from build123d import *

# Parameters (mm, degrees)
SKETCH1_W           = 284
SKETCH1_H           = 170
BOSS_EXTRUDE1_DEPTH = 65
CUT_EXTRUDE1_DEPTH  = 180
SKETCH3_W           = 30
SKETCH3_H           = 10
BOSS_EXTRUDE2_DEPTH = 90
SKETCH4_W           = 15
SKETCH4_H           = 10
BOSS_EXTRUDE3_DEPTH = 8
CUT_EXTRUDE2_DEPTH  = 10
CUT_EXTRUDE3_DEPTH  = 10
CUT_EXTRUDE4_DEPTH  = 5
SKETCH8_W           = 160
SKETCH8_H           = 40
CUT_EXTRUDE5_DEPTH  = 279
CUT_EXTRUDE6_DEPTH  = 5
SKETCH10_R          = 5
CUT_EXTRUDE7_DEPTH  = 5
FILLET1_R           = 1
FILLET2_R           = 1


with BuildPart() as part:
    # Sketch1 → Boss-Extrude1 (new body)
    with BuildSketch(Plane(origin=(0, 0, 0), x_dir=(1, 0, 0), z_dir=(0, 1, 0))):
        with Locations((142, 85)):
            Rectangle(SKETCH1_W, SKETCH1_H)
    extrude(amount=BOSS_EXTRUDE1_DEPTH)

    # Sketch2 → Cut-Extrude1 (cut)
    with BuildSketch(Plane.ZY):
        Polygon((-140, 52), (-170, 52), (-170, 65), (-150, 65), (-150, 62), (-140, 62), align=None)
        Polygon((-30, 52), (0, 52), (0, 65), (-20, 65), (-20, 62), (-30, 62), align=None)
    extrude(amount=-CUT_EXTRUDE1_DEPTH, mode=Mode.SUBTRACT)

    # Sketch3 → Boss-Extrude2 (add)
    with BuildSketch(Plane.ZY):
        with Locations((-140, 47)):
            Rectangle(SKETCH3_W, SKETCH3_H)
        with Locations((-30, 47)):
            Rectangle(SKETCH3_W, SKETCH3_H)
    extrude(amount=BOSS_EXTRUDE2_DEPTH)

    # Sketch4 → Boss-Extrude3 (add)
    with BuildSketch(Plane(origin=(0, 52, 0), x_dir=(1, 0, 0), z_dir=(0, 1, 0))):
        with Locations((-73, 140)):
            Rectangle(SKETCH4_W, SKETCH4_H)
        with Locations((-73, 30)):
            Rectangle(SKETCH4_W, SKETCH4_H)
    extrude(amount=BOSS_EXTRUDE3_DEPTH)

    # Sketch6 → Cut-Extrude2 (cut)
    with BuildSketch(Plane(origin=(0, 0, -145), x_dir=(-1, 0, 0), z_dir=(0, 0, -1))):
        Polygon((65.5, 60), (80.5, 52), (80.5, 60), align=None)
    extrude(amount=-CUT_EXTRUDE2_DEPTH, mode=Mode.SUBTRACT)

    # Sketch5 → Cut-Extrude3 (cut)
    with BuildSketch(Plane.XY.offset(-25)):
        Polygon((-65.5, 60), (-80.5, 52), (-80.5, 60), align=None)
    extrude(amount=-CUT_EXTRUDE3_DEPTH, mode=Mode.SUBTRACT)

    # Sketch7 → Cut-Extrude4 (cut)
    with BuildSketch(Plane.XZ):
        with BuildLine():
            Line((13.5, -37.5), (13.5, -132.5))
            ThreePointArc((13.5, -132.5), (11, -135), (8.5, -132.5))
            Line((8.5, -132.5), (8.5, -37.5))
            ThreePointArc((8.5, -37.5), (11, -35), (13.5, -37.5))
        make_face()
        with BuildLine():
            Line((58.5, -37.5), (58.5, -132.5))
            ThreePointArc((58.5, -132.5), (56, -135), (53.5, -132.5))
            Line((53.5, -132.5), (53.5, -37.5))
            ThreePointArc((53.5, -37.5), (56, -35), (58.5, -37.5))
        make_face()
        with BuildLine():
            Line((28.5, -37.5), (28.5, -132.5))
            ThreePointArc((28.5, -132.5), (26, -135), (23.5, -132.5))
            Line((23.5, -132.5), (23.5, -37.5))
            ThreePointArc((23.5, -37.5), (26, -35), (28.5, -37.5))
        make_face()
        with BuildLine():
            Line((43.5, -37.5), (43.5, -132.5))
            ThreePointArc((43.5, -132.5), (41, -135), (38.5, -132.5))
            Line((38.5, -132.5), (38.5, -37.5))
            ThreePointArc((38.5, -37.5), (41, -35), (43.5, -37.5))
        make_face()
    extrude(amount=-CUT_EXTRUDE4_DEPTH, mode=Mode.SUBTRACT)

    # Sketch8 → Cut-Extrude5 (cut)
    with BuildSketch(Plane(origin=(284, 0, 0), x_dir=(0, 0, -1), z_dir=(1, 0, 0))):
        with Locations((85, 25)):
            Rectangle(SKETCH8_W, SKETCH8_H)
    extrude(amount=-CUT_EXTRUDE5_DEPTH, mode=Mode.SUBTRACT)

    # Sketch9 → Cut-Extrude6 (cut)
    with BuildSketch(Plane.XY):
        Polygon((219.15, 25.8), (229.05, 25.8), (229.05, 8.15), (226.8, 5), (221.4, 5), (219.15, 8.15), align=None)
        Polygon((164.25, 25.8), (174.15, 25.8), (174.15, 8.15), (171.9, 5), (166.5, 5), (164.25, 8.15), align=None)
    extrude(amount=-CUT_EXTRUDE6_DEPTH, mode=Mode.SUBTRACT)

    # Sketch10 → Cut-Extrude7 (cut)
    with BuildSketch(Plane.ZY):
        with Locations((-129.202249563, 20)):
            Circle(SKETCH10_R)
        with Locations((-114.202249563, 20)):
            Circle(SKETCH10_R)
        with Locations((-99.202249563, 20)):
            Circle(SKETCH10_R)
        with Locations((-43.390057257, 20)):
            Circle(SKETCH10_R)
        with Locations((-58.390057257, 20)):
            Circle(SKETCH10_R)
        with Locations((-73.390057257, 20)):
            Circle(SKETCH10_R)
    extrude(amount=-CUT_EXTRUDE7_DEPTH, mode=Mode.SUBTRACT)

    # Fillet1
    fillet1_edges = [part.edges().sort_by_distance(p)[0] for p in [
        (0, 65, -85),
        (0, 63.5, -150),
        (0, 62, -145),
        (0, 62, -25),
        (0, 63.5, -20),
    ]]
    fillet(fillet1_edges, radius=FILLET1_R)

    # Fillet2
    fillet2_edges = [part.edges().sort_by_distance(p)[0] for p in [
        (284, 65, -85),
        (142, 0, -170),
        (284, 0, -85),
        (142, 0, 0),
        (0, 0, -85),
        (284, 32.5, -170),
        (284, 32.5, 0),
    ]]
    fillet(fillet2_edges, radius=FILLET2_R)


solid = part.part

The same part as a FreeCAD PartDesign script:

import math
import FreeCAD as App
import Part
import Sketcher
Q = App.Units.Quantity


def edges_at(feature, points):
    """Names of the edges that pass closest to the given points."""
    edges = feature.Shape.Edges
    near = lambda p: min(range(len(edges)), key=lambda i: edges[i].distToShape(Part.Vertex(*p))[0])
    return sorted({f"Edge{near(p) + 1}" for p in points})

doc = App.newDocument("Part")
body = doc.addObject("PartDesign::Body", "Body")

sketch1 = body.newObject("Sketcher::SketchObject", "Sketch")
sketch1.AttachmentSupport = (doc.getObject("XZ_Plane"), [""])
sketch1.MapMode = "FlatFace"
sketch1.addGeometry([
    Part.LineSegment(App.Vector(0, -170, 0), App.Vector(0, 0, 0)),
    Part.LineSegment(App.Vector(0, 0, 0), App.Vector(284, 0, 0)),
    Part.LineSegment(App.Vector(284, 0, 0), App.Vector(284, -170, 0)),
    Part.LineSegment(App.Vector(284, -170, 0), App.Vector(0, -170, 0)),
], False)
sketch1.addConstraint([
    Sketcher.Constraint("Coincident", 0, 2, 1, 1),
    Sketcher.Constraint("Coincident", 1, 2, 2, 1),
    Sketcher.Constraint("Coincident", 2, 2, 3, 1),
    Sketcher.Constraint("Coincident", 3, 2, 0, 1),
    Sketcher.Constraint("Vertical", 0),
    Sketcher.Constraint("Horizontal", 1),
    Sketcher.Constraint("Vertical", 2),
    Sketcher.Constraint("Horizontal", 3),
    Sketcher.Constraint("Coincident", 0, 2, -1, 1),
    Sketcher.Constraint("DistanceX", 1, 1, 1, 2, Q("284 mm")),
    Sketcher.Constraint("DistanceY", 0, 1, 0, 2, Q("170 mm")),
])
pad1 = body.newObject("PartDesign::Pad", "Pad")
pad1.Profile = sketch1
pad1.Length = 65
pad1.Reversed = True

sketch2 = body.newObject("Sketcher::SketchObject", "Sketch001")
sketch2.AttachmentSupport = (doc.getObject("YZ_Plane"), [""])
sketch2.MapMode = "FlatFace"
sketch2.addGeometry([
    Part.LineSegment(App.Vector(52, -170, 0), App.Vector(52, -140, 0)),
    Part.LineSegment(App.Vector(52, -140, 0), App.Vector(62, -140, 0)),
    Part.LineSegment(App.Vector(62, -140, 0), App.Vector(62, -150, 0)),
    Part.LineSegment(App.Vector(62, -150, 0), App.Vector(65, -150, 0)),
    Part.LineSegment(App.Vector(65, -150, 0), App.Vector(65, -170, 0)),
    Part.LineSegment(App.Vector(65, -170, 0), App.Vector(52, -170, 0)),
    Part.LineSegment(App.Vector(52, -30, 0), App.Vector(52, 0, 0)),
    Part.LineSegment(App.Vector(52, 0, 0), App.Vector(65, 0, 0)),
    Part.LineSegment(App.Vector(65, 0, 0), App.Vector(65, -20, 0)),
    Part.LineSegment(App.Vector(65, -20, 0), App.Vector(62, -20, 0)),
    Part.LineSegment(App.Vector(62, -20, 0), App.Vector(62, -30, 0)),
    Part.LineSegment(App.Vector(62, -30, 0), App.Vector(52, -30, 0)),
], False)
sketch2.addConstraint([
    Sketcher.Constraint("Coincident", 0, 2, 1, 1),
    Sketcher.Constraint("Coincident", 1, 2, 2, 1),
    Sketcher.Constraint("Coincident", 2, 2, 3, 1),
    Sketcher.Constraint("Coincident", 3, 2, 4, 1),
    Sketcher.Constraint("Coincident", 4, 2, 5, 1),
    Sketcher.Constraint("Coincident", 5, 2, 0, 1),
    Sketcher.Constraint("Coincident", 6, 2, 7, 1),
    Sketcher.Constraint("Coincident", 7, 2, 8, 1),
    Sketcher.Constraint("Coincident", 8, 2, 9, 1),
    Sketcher.Constraint("Coincident", 9, 2, 10, 1),
    Sketcher.Constraint("Coincident", 10, 2, 11, 1),
    Sketcher.Constraint("Coincident", 11, 2, 6, 1),
    Sketcher.Constraint("Vertical", 0),
    Sketcher.Constraint("Horizontal", 1),
    Sketcher.Constraint("Vertical", 2),
    Sketcher.Constraint("Horizontal", 3),
    Sketcher.Constraint("Vertical", 4),
    Sketcher.Constraint("Horizontal", 5),
    Sketcher.Constraint("Vertical", 6),
    Sketcher.Constraint("Horizontal", 7),
    Sketcher.Constraint("Vertical", 8),
    Sketcher.Constraint("Horizontal", 9),
    Sketcher.Constraint("Vertical", 10),
    Sketcher.Constraint("Horizontal", 11),
    Sketcher.Constraint("PointOnObject", 6, 2, -1),
    Sketcher.Constraint("Vertical", 5, 2, 6, 2),
    Sketcher.Constraint("Vertical", 4, 2, 7, 2),
    Sketcher.Constraint("Vertical", 2, 2, 9, 2),
    Sketcher.Constraint("Equal", 11, 2),
    Sketcher.Constraint("Equal", 0, 6),
    Sketcher.Constraint("Equal", 4, 8),
    Sketcher.Constraint("DistanceX", 1, 1, 1, 2, Q("10 mm")),
    Sketcher.Constraint("DistanceX", 3, 1, 3, 2, Q("3 mm")),
    Sketcher.Constraint("DistanceY", 0, 1, 0, 2, Q("30 mm")),
    Sketcher.Constraint("DistanceX", -1, 1, 0, 2, Q("52 mm")),
    Sketcher.Constraint("DistanceY", 0, 2, -1, 1, Q("140 mm")),
])
pocket1 = body.newObject("PartDesign::Pocket", "Pocket")
pocket1.Profile = sketch2
pocket1.Length = 180
pocket1.Reversed = True

sketch3 = body.newObject("Sketcher::SketchObject", "Sketch002")
sketch3.AttachmentSupport = (doc.getObject("YZ_Plane"), [""])
sketch3.MapMode = "FlatFace"
sketch3.addGeometry([
    Part.LineSegment(App.Vector(52, -155, 0), App.Vector(42, -155, 0)),
    Part.LineSegment(App.Vector(42, -155, 0), App.Vector(42, -125, 0)),
    Part.LineSegment(App.Vector(42, -125, 0), App.Vector(52, -125, 0)),
    Part.LineSegment(App.Vector(52, -125, 0), App.Vector(52, -155, 0)),
    Part.LineSegment(App.Vector(52, -45, 0), App.Vector(42, -45, 0)),
    Part.LineSegment(App.Vector(42, -45, 0), App.Vector(42, -15, 0)),
    Part.LineSegment(App.Vector(42, -15, 0), App.Vector(52, -15, 0)),
    Part.LineSegment(App.Vector(52, -15, 0), App.Vector(52, -45, 0)),
], False)
sketch3.addConstraint([
    Sketcher.Constraint("Coincident", 0, 2, 1, 1),
    Sketcher.Constraint("Coincident", 1, 2, 2, 1),
    Sketcher.Constraint("Coincident", 2, 2, 3, 1),
    Sketcher.Constraint("Coincident", 3, 2, 0, 1),
    Sketcher.Constraint("Coincident", 4, 2, 5, 1),
    Sketcher.Constraint("Coincident", 5, 2, 6, 1),
    Sketcher.Constraint("Coincident", 6, 2, 7, 1),
    Sketcher.Constraint("Coincident", 7, 2, 4, 1),
    Sketcher.Constraint("Horizontal", 0),
    Sketcher.Constraint("Vertical", 1),
    Sketcher.Constraint("Horizontal", 2),
    Sketcher.Constraint("Vertical", 3),
    Sketcher.Constraint("Horizontal", 4),
    Sketcher.Constraint("Vertical", 5),
    Sketcher.Constraint("Horizontal", 6),
    Sketcher.Constraint("Vertical", 7),
    Sketcher.Constraint("Vertical", 1, 2, 4, 2),
    Sketcher.Constraint("Vertical", 3, 2, 6, 2),
    Sketcher.Constraint("Equal", 3, 5),
    Sketcher.Constraint("DistanceX", 0, 2, 0, 1, Q("10 mm")),
    Sketcher.Constraint("DistanceY", 1, 1, 1, 2, Q("30 mm")),
    Sketcher.Constraint("DistanceX", -1, 1, 0, 2, Q("42 mm")),
    Sketcher.Constraint("DistanceY", 0, 2, -1, 1, Q("155 mm")),
    Sketcher.Constraint("DistanceY", 4, 2, -1, 1, Q("45 mm")),
])
pad2 = body.newObject("PartDesign::Pad", "Pad001")
pad2.Profile = sketch3
pad2.Length = 90
pad2.Reversed = True

sketch4 = body.newObject("Sketcher::SketchObject", "Sketch003")
sketch4.AttachmentSupport = (doc.getObject("XZ_Plane"), [""])
sketch4.MapMode = "FlatFace"
sketch4.AttachmentOffset = App.Placement(App.Vector(0, 0, -52), App.Rotation())
sketch4.addGeometry([
    Part.LineSegment(App.Vector(-80.5, -145, 0), App.Vector(-80.5, -135, 0)),
    Part.LineSegment(App.Vector(-80.5, -135, 0), App.Vector(-65.5, -135, 0)),
    Part.LineSegment(App.Vector(-65.5, -135, 0), App.Vector(-65.5, -145, 0)),
    Part.LineSegment(App.Vector(-65.5, -145, 0), App.Vector(-80.5, -145, 0)),
    Part.LineSegment(App.Vector(-80.5, -35, 0), App.Vector(-80.5, -25, 0)),
    Part.LineSegment(App.Vector(-80.5, -25, 0), App.Vector(-65.5, -25, 0)),
    Part.LineSegment(App.Vector(-65.5, -25, 0), App.Vector(-65.5, -35, 0)),
    Part.LineSegment(App.Vector(-65.5, -35, 0), App.Vector(-80.5, -35, 0)),
], False)
sketch4.addConstraint([
    Sketcher.Constraint("Coincident", 0, 2, 1, 1),
    Sketcher.Constraint("Coincident", 1, 2, 2, 1),
    Sketcher.Constraint("Coincident", 2, 2, 3, 1),
    Sketcher.Constraint("Coincident", 3, 2, 0, 1),
    Sketcher.Constraint("Coincident", 4, 2, 5, 1),
    Sketcher.Constraint("Coincident", 5, 2, 6, 1),
    Sketcher.Constraint("Coincident", 6, 2, 7, 1),
    Sketcher.Constraint("Coincident", 7, 2, 4, 1),
    Sketcher.Constraint("Vertical", 0),
    Sketcher.Constraint("Horizontal", 1),
    Sketcher.Constraint("Vertical", 2),
    Sketcher.Constraint("Horizontal", 3),
    Sketcher.Constraint("Vertical", 4),
    Sketcher.Constraint("Horizontal", 5),
    Sketcher.Constraint("Vertical", 6),
    Sketcher.Constraint("Horizontal", 7),
    Sketcher.Constraint("Vertical", 3, 2, 4, 2),
    Sketcher.Constraint("Vertical", 2, 2, 5, 2),
    Sketcher.Constraint("Equal", 2, 4),
    Sketcher.Constraint("DistanceX", 1, 1, 1, 2, Q("15 mm")),
    Sketcher.Constraint("DistanceY", 0, 1, 0, 2, Q("10 mm")),
    Sketcher.Constraint("DistanceY", 0, 2, -1, 1, Q("135 mm")),
    Sketcher.Constraint("DistanceY", 4, 2, -1, 1, Q("25 mm")),
    Sketcher.Constraint("DistanceX", 0, 2, -1, 1, Q("80.5 mm")),
])
pad3 = body.newObject("PartDesign::Pad", "Pad002")
pad3.Profile = sketch4
pad3.Length = 8
pad3.Reversed = True

sketch5 = body.newObject("Sketcher::SketchObject", "Sketch004")
sketch5.AttachmentSupport = (doc.getObject("XY_Plane"), [""])
sketch5.MapMode = "FlatFace"
sketch5.AttachmentOffset = App.Placement(App.Vector(0, 0, -145), App.Rotation())
sketch5.addGeometry([
    Part.LineSegment(App.Vector(-65.5, 60, 0), App.Vector(-80.5, 52, 0)),
    Part.LineSegment(App.Vector(-80.5, 52, 0), App.Vector(-80.5, 60, 0)),
    Part.LineSegment(App.Vector(-80.5, 60, 0), App.Vector(-65.5, 60, 0)),
], False)
sketch5.addConstraint([
    Sketcher.Constraint("Coincident", 0, 2, 1, 1),
    Sketcher.Constraint("Coincident", 1, 2, 2, 1),
    Sketcher.Constraint("Coincident", 2, 2, 0, 1),
    Sketcher.Constraint("Vertical", 1),
    Sketcher.Constraint("Horizontal", 2),
    Sketcher.Constraint("DistanceX", 2, 1, 2, 2, Q("15 mm")),
    Sketcher.Constraint("DistanceY", 1, 1, 1, 2, Q("8 mm")),
    Sketcher.Constraint("DistanceY", -1, 1, 0, 2, Q("52 mm")),
    Sketcher.Constraint("DistanceX", 0, 2, -1, 1, Q("80.5 mm")),
])
pocket2 = body.newObject("PartDesign::Pocket", "Pocket001")
pocket2.Profile = sketch5
pocket2.Length = 10
pocket2.Reversed = True

sketch6 = body.newObject("Sketcher::SketchObject", "Sketch005")
sketch6.AttachmentSupport = (doc.getObject("XY_Plane"), [""])
sketch6.MapMode = "FlatFace"
sketch6.AttachmentOffset = App.Placement(App.Vector(0, 0, -25), App.Rotation())
sketch6.addGeometry([
    Part.LineSegment(App.Vector(-80.5, 52, 0), App.Vector(-65.5, 60, 0)),
    Part.LineSegment(App.Vector(-65.5, 60, 0), App.Vector(-80.5, 60, 0)),
    Part.LineSegment(App.Vector(-80.5, 60, 0), App.Vector(-80.5, 52, 0)),
], False)
sketch6.addConstraint([
    Sketcher.Constraint("Coincident", 0, 2, 1, 1),
    Sketcher.Constraint("Coincident", 1, 2, 2, 1),
    Sketcher.Constraint("Coincident", 2, 2, 0, 1),
    Sketcher.Constraint("Horizontal", 1),
    Sketcher.Constraint("Vertical", 2),
    Sketcher.Constraint("DistanceX", 1, 2, 1, 1, Q("15 mm")),
    Sketcher.Constraint("DistanceY", 2, 2, 2, 1, Q("8 mm")),
    Sketcher.Constraint("DistanceY", -1, 1, 0, 2, Q("60 mm")),
    Sketcher.Constraint("DistanceX", 0, 2, -1, 1, Q("65.5 mm")),
])
pocket3 = body.newObject("PartDesign::Pocket", "Pocket002")
pocket3.Profile = sketch6
pocket3.Length = 10

sketch7 = body.newObject("Sketcher::SketchObject", "Sketch006")
sketch7.AttachmentSupport = (doc.getObject("XZ_Plane"), [""])
sketch7.MapMode = "FlatFace"
sketch7.addGeometry([
    Part.LineSegment(App.Vector(13.5, -132.5, 0), App.Vector(13.5, -37.5, 0)),
    Part.ArcOfCircle(Part.Circle(App.Vector(11, -37.5, 0), App.Vector(0, 0, 1), 2.5), math.radians(0), math.radians(180)),
    Part.LineSegment(App.Vector(8.5, -37.5, 0), App.Vector(8.5, -132.5, 0)),
    Part.ArcOfCircle(Part.Circle(App.Vector(11, -132.5, 0), App.Vector(0, 0, 1), 2.5), math.radians(180), math.radians(360)),
    Part.LineSegment(App.Vector(58.5, -132.5, 0), App.Vector(58.5, -37.5, 0)),
    Part.ArcOfCircle(Part.Circle(App.Vector(56, -37.5, 0), App.Vector(0, 0, 1), 2.5), math.radians(0), math.radians(180)),
    Part.LineSegment(App.Vector(53.5, -37.5, 0), App.Vector(53.5, -132.5, 0)),
    Part.ArcOfCircle(Part.Circle(App.Vector(56, -132.5, 0), App.Vector(0, 0, 1), 2.5), math.radians(180), math.radians(360)),
    Part.LineSegment(App.Vector(28.5, -132.5, 0), App.Vector(28.5, -37.5, 0)),
    Part.ArcOfCircle(Part.Circle(App.Vector(26, -37.5, 0), App.Vector(0, 0, 1), 2.5), math.radians(0), math.radians(180)),
    Part.LineSegment(App.Vector(23.5, -37.5, 0), App.Vector(23.5, -132.5, 0)),
    Part.ArcOfCircle(Part.Circle(App.Vector(26, -132.5, 0), App.Vector(0, 0, 1), 2.5), math.radians(180), math.radians(360)),
    Part.LineSegment(App.Vector(43.5, -132.5, 0), App.Vector(43.5, -37.5, 0)),
    Part.ArcOfCircle(Part.Circle(App.Vector(41, -37.5, 0), App.Vector(0, 0, 1), 2.5), math.radians(0), math.radians(180)),
    Part.LineSegment(App.Vector(38.5, -37.5, 0), App.Vector(38.5, -132.5, 0)),
    Part.ArcOfCircle(Part.Circle(App.Vector(41, -132.5, 0), App.Vector(0, 0, 1), 2.5), math.radians(180), math.radians(360)),
], False)
sketch7.addConstraint([
    Sketcher.Constraint("Tangent", 0, 2, 1, 1),
    Sketcher.Constraint("Tangent", 1, 2, 2, 1),
    Sketcher.Constraint("Tangent", 2, 2, 3, 1),
    Sketcher.Constraint("Tangent", 3, 2, 0, 1),
    Sketcher.Constraint("Tangent", 4, 2, 5, 1),
    Sketcher.Constraint("Tangent", 5, 2, 6, 1),
    Sketcher.Constraint("Tangent", 6, 2, 7, 1),
    Sketcher.Constraint("Tangent", 7, 2, 4, 1),
    Sketcher.Constraint("Tangent", 8, 2, 9, 1),
    Sketcher.Constraint("Tangent", 9, 2, 10, 1),
    Sketcher.Constraint("Tangent", 10, 2, 11, 1),
    Sketcher.Constraint("Tangent", 11, 2, 8, 1),
    Sketcher.Constraint("Tangent", 12, 2, 13, 1),
    Sketcher.Constraint("Tangent", 13, 2, 14, 1),
    Sketcher.Constraint("Tangent", 14, 2, 15, 1),
    Sketcher.Constraint("Tangent", 15, 2, 12, 1),
    Sketcher.Constraint("Vertical", 0),
    Sketcher.Constraint("Vertical", 2),
    Sketcher.Constraint("Vertical", 4),
    Sketcher.Constraint("Vertical", 6),
    Sketcher.Constraint("Vertical", 8),
    Sketcher.Constraint("Vertical", 10),
    Sketcher.Constraint("Vertical", 12),
    Sketcher.Constraint("Vertical", 14),
    Sketcher.Constraint("Equal", 3, 5),
    Sketcher.Constraint("Equal", 7, 9),
    Sketcher.Constraint("Equal", 11, 13),
    Sketcher.Constraint("Horizontal", 1, 3, 5, 3),
    Sketcher.Constraint("Horizontal", 3, 3, 7, 3),
    Sketcher.Constraint("Horizontal", 5, 3, 9, 3),
    Sketcher.Constraint("Horizontal", 7, 3, 11, 3),
    Sketcher.Constraint("Horizontal", 9, 3, 13, 3),
    Sketcher.Constraint("Horizontal", 11, 3, 15, 3),
    Sketcher.Constraint("Radius", 1, Q("2.5 mm")),
    Sketcher.Constraint("DistanceY", 0, 1, 0, 2, Q("95 mm")),
    Sketcher.Constraint("DistanceX", -1, 1, 1, 3, Q("11 mm")),
    Sketcher.Constraint("DistanceX", -1, 1, 5, 3, Q("56 mm")),
    Sketcher.Constraint("DistanceX", -1, 1, 9, 3, Q("26 mm")),
    Sketcher.Constraint("DistanceX", -1, 1, 13, 3, Q("41 mm")),
    Sketcher.Constraint("DistanceY", 1, 3, -1, 1, Q("37.5 mm")),
])
pocket4 = body.newObject("PartDesign::Pocket", "Pocket003")
pocket4.Profile = sketch7
pocket4.Length = 5

sketch8 = body.newObject("Sketcher::SketchObject", "Sketch007")
sketch8.AttachmentSupport = (doc.getObject("YZ_Plane"), [""])
sketch8.MapMode = "FlatFace"
sketch8.AttachmentOffset = App.Placement(App.Vector(0, 0, 284), App.Rotation())
sketch8.addGeometry([
    Part.LineSegment(App.Vector(45, -5, 0), App.Vector(5, -5, 0)),
    Part.LineSegment(App.Vector(5, -5, 0), App.Vector(5, -165, 0)),
    Part.LineSegment(App.Vector(5, -165, 0), App.Vector(45, -165, 0)),
    Part.LineSegment(App.Vector(45, -165, 0), App.Vector(45, -5, 0)),
], False)
sketch8.addConstraint([
    Sketcher.Constraint("Coincident", 0, 2, 1, 1),
    Sketcher.Constraint("Coincident", 1, 2, 2, 1),
    Sketcher.Constraint("Coincident", 2, 2, 3, 1),
    Sketcher.Constraint("Coincident", 3, 2, 0, 1),
    Sketcher.Constraint("Horizontal", 0),
    Sketcher.Constraint("Vertical", 1),
    Sketcher.Constraint("Horizontal", 2),
    Sketcher.Constraint("Vertical", 3),
    Sketcher.Constraint("DistanceX", 0, 2, 0, 1, Q("40 mm")),
    Sketcher.Constraint("DistanceY", 1, 2, 1, 1, Q("160 mm")),
    Sketcher.Constraint("DistanceX", -1, 1, 0, 2, Q("5 mm")),
    Sketcher.Constraint("DistanceY", 0, 2, -1, 1, Q("5 mm")),
])
pocket5 = body.newObject("PartDesign::Pocket", "Pocket004")
pocket5.Profile = sketch8
pocket5.Length = 279

sketch9 = body.newObject("Sketcher::SketchObject", "Sketch008")
sketch9.AttachmentSupport = (doc.getObject("XY_Plane"), [""])
sketch9.MapMode = "FlatFace"
sketch9.addGeometry([
    Part.LineSegment(App.Vector(229.05, 25.8, 0), App.Vector(219.15, 25.8, 0)),
    Part.LineSegment(App.Vector(219.15, 25.8, 0), App.Vector(219.15, 8.15, 0)),
    Part.LineSegment(App.Vector(219.15, 8.15, 0), App.Vector(221.4, 5, 0)),
    Part.LineSegment(App.Vector(221.4, 5, 0), App.Vector(226.8, 5, 0)),
    Part.LineSegment(App.Vector(226.8, 5, 0), App.Vector(229.05, 8.15, 0)),
    Part.LineSegment(App.Vector(229.05, 8.15, 0), App.Vector(229.05, 25.8, 0)),
    Part.LineSegment(App.Vector(174.15, 25.8, 0), App.Vector(164.25, 25.8, 0)),
    Part.LineSegment(App.Vector(164.25, 25.8, 0), App.Vector(164.25, 8.15, 0)),
    Part.LineSegment(App.Vector(164.25, 8.15, 0), App.Vector(166.5, 5, 0)),
    Part.LineSegment(App.Vector(166.5, 5, 0), App.Vector(171.9, 5, 0)),
    Part.LineSegment(App.Vector(171.9, 5, 0), App.Vector(174.15, 8.15, 0)),
    Part.LineSegment(App.Vector(174.15, 8.15, 0), App.Vector(174.15, 25.8, 0)),
], False)
sketch9.addConstraint([
    Sketcher.Constraint("Coincident", 0, 2, 1, 1),
    Sketcher.Constraint("Coincident", 1, 2, 2, 1),
    Sketcher.Constraint("Coincident", 2, 2, 3, 1),
    Sketcher.Constraint("Coincident", 3, 2, 4, 1),
    Sketcher.Constraint("Coincident", 4, 2, 5, 1),
    Sketcher.Constraint("Coincident", 5, 2, 0, 1),
    Sketcher.Constraint("Coincident", 6, 2, 7, 1),
    Sketcher.Constraint("Coincident", 7, 2, 8, 1),
    Sketcher.Constraint("Coincident", 8, 2, 9, 1),
    Sketcher.Constraint("Coincident", 9, 2, 10, 1),
    Sketcher.Constraint("Coincident", 10, 2, 11, 1),
    Sketcher.Constraint("Coincident", 11, 2, 6, 1),
    Sketcher.Constraint("Horizontal", 0),
    Sketcher.Constraint("Vertical", 1),
    Sketcher.Constraint("Horizontal", 3),
    Sketcher.Constraint("Vertical", 5),
    Sketcher.Constraint("Horizontal", 6),
    Sketcher.Constraint("Vertical", 7),
    Sketcher.Constraint("Horizontal", 9),
    Sketcher.Constraint("Vertical", 11),
    Sketcher.Constraint("Parallel", 2, 8),
    Sketcher.Constraint("Parallel", 4, 10),
    Sketcher.Constraint("Horizontal", 1, 2, 4, 2),
    Sketcher.Constraint("Horizontal", 5, 2, 6, 2),
    Sketcher.Constraint("Horizontal", 4, 2, 7, 2),
    Sketcher.Constraint("Horizontal", 3, 2, 8, 2),
    Sketcher.Constraint("Horizontal", 7, 2, 10, 2),
    Sketcher.Constraint("Equal", 0, 6),
    Sketcher.Constraint("Equal", 2, 4),
    Sketcher.Constraint("DistanceX", 0, 2, 0, 1, Q("9.9 mm")),
    Sketcher.Constraint("DistanceX", 3, 1, 3, 2, Q("5.4 mm")),
    Sketcher.Constraint("DistanceY", -1, 1, 2, 2, Q("5 mm")),
    Sketcher.Constraint("DistanceX", 10, 2, 1, 2, Q("45 mm")),
    Sketcher.Constraint("DistanceY", 1, 2, 1, 1, Q("17.65 mm")),
    Sketcher.Constraint("DistanceY", -1, 1, 0, 2, Q("25.8 mm")),
    Sketcher.Constraint("DistanceX", -1, 1, 2, 2, Q("221.4 mm")),
])
pocket6 = body.newObject("PartDesign::Pocket", "Pocket005")
pocket6.Profile = sketch9
pocket6.Length = 5

sketch10 = body.newObject("Sketcher::SketchObject", "Sketch009")
sketch10.AttachmentSupport = (doc.getObject("YZ_Plane"), [""])
sketch10.MapMode = "FlatFace"
sketch10.addGeometry([
    Part.Circle(App.Vector(20, -129.20225, 0), App.Vector(0, 0, 1), 5),
    Part.Circle(App.Vector(20, -114.20225, 0), App.Vector(0, 0, 1), 5),
    Part.Circle(App.Vector(20, -99.20225, 0), App.Vector(0, 0, 1), 5),
    Part.Circle(App.Vector(20, -43.390057, 0), App.Vector(0, 0, 1), 5),
    Part.Circle(App.Vector(20, -58.390057, 0), App.Vector(0, 0, 1), 5),
    Part.Circle(App.Vector(20, -73.390057, 0), App.Vector(0, 0, 1), 5),
], False)
sketch10.addConstraint([
    Sketcher.Constraint("Equal", 0, 1),
    Sketcher.Constraint("Equal", 1, 2),
    Sketcher.Constraint("Equal", 2, 3),
    Sketcher.Constraint("Equal", 3, 4),
    Sketcher.Constraint("Equal", 4, 5),
    Sketcher.Constraint("Vertical", 0, 3, 1, 3),
    Sketcher.Constraint("Vertical", 1, 3, 2, 3),
    Sketcher.Constraint("Vertical", 2, 3, 3, 3),
    Sketcher.Constraint("Vertical", 3, 3, 4, 3),
    Sketcher.Constraint("Vertical", 4, 3, 5, 3),
    Sketcher.Constraint("Diameter", 0, Q("10 mm")),
    Sketcher.Constraint("DistanceX", -1, 1, 0, 3, Q("20 mm")),
    Sketcher.Constraint("DistanceY", 0, 3, 1, 3, Q("15 mm")),
    Sketcher.Constraint("DistanceY", 1, 3, 2, 3, Q("15 mm")),
    Sketcher.Constraint("DistanceY", 4, 3, 3, 3, Q("15 mm")),
    Sketcher.Constraint("DistanceY", 5, 3, 4, 3, Q("15 mm")),
    Sketcher.Constraint("DistanceY", 0, 3, -1, 1, Q("129.20225 mm")),
    Sketcher.Constraint("DistanceY", 3, 3, -1, 1, Q("43.390057 mm")),
])
pocket7 = body.newObject("PartDesign::Pocket", "Pocket006")
pocket7.Profile = sketch10
pocket7.Length = 5
pocket7.Reversed = True
doc.recompute()

fillet = body.newObject("PartDesign::Fillet", "Fillet")
fillet.Base = (pocket7, edges_at(pocket7, [
    (0, 65, -85),
    (0, 63.5, -150),
    (0, 62, -145),
    (0, 62, -25),
    (0, 63.5, -20),
]))
fillet.Radius = 1
doc.recompute()

fillet2 = body.newObject("PartDesign::Fillet", "Fillet001")
fillet2.Base = (fillet, edges_at(fillet, [
    (284, 65, -85),
    (142, 0, -170),
    (284, 0, -85),
    (142, 0, 0),
    (0, 0, -85),
    (284, 32.5, -170),
    (284, 32.5, 0),
]))
fillet2.Radius = 1

doc.recompute()
